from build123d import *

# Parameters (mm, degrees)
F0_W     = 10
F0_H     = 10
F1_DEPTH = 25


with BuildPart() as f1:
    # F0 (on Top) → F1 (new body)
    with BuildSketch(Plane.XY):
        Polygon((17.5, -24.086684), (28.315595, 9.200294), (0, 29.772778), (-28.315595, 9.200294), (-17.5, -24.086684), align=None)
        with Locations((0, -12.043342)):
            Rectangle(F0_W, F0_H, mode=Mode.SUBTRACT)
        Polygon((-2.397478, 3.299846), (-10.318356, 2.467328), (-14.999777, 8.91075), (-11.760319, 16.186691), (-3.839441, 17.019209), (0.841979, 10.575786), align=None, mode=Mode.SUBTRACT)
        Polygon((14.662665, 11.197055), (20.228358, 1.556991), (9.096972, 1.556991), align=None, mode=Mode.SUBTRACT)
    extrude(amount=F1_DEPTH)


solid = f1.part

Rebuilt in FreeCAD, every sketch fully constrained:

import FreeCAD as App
import Part
import Sketcher
Q = App.Units.Quantity


def add_polygon(sketch, points):
    """Adds a closed chain of lines whose ends are joined by coincident constraints."""
    first, n = sketch.GeometryCount, len(points)
    for a, b in zip(points, points[1:] + points[:1]):
        sketch.addGeometry(Part.LineSegment(App.Vector(*a, 0), App.Vector(*b, 0)), False)
    for i in range(n):
        sketch.addConstraint(Sketcher.Constraint("Coincident", first + i, 2, first + (i + 1) % n, 1))

doc = App.newDocument("Part")
body = doc.addObject("PartDesign::Body", "Body")

# Sketch on XY plane
sketch1 = body.newObject("Sketcher::SketchObject", "Sketch")
sketch1.AttachmentSupport = (doc.getObject("XY_Plane"), [""])
sketch1.MapMode = "FlatFace"
add_polygon(sketch1, [(17.5, -24.086684), (28.315595, 9.200294), (0, 29.772778), (-28.315595, 9.200294), (-17.5, -24.086684)])  # lines 0-4
add_polygon(sketch1, [(5, -17.043342), (-5, -17.043342), (-5, -7.043342), (5, -7.043342)])  # lines 5-8
add_polygon(sketch1, [(0.841979, 10.575786), (-2.397478, 3.299846), (-10.318356, 2.467328), (-14.999777, 8.91075), (-11.760319, 16.186691), (-3.839441, 17.019209)])  # lines 9-14
add_polygon(sketch1, [(9.096972, 1.556991), (14.662665, 11.197055), (20.228358, 1.556991)])  # lines 15-17
sketch1.addConstraint([
    Sketcher.Constraint("Horizontal", 4),
    Sketcher.Constraint("Horizontal", 5),
    Sketcher.Constraint("Vertical", 6),
    Sketcher.Constraint("Horizontal", 7),
    Sketcher.Constraint("Vertical", 8),
    Sketcher.Constraint("Horizontal", 17),
    Sketcher.Constraint("Symmetric", 0, 2, 2, 2, -2),
    Sketcher.Constraint("PointOnObject", 1, 2, -2),
    Sketcher.Constraint("Perpendicular", 2, 11),
    Sketcher.Constraint("Parallel", 9, 12),
    Sketcher.Constraint("Parallel", 10, 13),
    Sketcher.Constraint("Parallel", 11, 14),
    Sketcher.Constraint("Equal", 7, 6),
    Sketcher.Constraint("Equal", 0, 1),
    Sketcher.Constraint("Equal", 2, 3),
    Sketcher.Constraint("Equal", 9, 10),
    Sketcher.Constraint("Equal", 10, 11),
    Sketcher.Constraint("Equal", 11, 12),
    Sketcher.Constraint("Equal", 15, 16),
    Sketcher.Constraint("DistanceX", 4, 1, 4, 2, 35.0),
    Sketcher.Constraint("DistanceX", 5, 2, 5, 1, 10.0),
    Sketcher.Constraint("Angle", 0, Q("72 deg")),
    Sketcher.Constraint("Angle", 1, Q("144 deg")),
    Sketcher.Constraint("Angle", 9, Q("-113.999999 deg")),
    Sketcher.Constraint("Angle", 10, Q("-173.999999 deg")),
    Sketcher.Constraint("Angle", 15, Q("60.000002 deg")),
    Sketcher.Constraint("DistanceX", 5, 2, -1, 1, 5.0),
    Sketcher.Constraint("DistanceX", 11, 2, 9, 2, 12.602299),
    Sketcher.Constraint("DistanceX", 17, 2, 17, 1, 11.131386),
    Sketcher.Constraint("DistanceY", 5, 2, -1, 1, 17.043342),
    Sketcher.Constraint("DistanceX", 9, 2, -1, 1, 2.397478),
    Sketcher.Constraint("DistanceY", -1, 1, 10, 2, 2.467328),
    Sketcher.Constraint("DistanceX", -1, 1, 16, 2, 20.228358),
    Sketcher.Constraint("DistanceY", -1, 1, 16, 2, 1.556991),
    Sketcher.Constraint("DistanceY", 5, 2, 1, 2, 46.81612),
])
pad1 = body.newObject("PartDesign::Pad", "Pad")
pad1.Profile = sketch1
pad1.Length = 25

doc.recompute()
